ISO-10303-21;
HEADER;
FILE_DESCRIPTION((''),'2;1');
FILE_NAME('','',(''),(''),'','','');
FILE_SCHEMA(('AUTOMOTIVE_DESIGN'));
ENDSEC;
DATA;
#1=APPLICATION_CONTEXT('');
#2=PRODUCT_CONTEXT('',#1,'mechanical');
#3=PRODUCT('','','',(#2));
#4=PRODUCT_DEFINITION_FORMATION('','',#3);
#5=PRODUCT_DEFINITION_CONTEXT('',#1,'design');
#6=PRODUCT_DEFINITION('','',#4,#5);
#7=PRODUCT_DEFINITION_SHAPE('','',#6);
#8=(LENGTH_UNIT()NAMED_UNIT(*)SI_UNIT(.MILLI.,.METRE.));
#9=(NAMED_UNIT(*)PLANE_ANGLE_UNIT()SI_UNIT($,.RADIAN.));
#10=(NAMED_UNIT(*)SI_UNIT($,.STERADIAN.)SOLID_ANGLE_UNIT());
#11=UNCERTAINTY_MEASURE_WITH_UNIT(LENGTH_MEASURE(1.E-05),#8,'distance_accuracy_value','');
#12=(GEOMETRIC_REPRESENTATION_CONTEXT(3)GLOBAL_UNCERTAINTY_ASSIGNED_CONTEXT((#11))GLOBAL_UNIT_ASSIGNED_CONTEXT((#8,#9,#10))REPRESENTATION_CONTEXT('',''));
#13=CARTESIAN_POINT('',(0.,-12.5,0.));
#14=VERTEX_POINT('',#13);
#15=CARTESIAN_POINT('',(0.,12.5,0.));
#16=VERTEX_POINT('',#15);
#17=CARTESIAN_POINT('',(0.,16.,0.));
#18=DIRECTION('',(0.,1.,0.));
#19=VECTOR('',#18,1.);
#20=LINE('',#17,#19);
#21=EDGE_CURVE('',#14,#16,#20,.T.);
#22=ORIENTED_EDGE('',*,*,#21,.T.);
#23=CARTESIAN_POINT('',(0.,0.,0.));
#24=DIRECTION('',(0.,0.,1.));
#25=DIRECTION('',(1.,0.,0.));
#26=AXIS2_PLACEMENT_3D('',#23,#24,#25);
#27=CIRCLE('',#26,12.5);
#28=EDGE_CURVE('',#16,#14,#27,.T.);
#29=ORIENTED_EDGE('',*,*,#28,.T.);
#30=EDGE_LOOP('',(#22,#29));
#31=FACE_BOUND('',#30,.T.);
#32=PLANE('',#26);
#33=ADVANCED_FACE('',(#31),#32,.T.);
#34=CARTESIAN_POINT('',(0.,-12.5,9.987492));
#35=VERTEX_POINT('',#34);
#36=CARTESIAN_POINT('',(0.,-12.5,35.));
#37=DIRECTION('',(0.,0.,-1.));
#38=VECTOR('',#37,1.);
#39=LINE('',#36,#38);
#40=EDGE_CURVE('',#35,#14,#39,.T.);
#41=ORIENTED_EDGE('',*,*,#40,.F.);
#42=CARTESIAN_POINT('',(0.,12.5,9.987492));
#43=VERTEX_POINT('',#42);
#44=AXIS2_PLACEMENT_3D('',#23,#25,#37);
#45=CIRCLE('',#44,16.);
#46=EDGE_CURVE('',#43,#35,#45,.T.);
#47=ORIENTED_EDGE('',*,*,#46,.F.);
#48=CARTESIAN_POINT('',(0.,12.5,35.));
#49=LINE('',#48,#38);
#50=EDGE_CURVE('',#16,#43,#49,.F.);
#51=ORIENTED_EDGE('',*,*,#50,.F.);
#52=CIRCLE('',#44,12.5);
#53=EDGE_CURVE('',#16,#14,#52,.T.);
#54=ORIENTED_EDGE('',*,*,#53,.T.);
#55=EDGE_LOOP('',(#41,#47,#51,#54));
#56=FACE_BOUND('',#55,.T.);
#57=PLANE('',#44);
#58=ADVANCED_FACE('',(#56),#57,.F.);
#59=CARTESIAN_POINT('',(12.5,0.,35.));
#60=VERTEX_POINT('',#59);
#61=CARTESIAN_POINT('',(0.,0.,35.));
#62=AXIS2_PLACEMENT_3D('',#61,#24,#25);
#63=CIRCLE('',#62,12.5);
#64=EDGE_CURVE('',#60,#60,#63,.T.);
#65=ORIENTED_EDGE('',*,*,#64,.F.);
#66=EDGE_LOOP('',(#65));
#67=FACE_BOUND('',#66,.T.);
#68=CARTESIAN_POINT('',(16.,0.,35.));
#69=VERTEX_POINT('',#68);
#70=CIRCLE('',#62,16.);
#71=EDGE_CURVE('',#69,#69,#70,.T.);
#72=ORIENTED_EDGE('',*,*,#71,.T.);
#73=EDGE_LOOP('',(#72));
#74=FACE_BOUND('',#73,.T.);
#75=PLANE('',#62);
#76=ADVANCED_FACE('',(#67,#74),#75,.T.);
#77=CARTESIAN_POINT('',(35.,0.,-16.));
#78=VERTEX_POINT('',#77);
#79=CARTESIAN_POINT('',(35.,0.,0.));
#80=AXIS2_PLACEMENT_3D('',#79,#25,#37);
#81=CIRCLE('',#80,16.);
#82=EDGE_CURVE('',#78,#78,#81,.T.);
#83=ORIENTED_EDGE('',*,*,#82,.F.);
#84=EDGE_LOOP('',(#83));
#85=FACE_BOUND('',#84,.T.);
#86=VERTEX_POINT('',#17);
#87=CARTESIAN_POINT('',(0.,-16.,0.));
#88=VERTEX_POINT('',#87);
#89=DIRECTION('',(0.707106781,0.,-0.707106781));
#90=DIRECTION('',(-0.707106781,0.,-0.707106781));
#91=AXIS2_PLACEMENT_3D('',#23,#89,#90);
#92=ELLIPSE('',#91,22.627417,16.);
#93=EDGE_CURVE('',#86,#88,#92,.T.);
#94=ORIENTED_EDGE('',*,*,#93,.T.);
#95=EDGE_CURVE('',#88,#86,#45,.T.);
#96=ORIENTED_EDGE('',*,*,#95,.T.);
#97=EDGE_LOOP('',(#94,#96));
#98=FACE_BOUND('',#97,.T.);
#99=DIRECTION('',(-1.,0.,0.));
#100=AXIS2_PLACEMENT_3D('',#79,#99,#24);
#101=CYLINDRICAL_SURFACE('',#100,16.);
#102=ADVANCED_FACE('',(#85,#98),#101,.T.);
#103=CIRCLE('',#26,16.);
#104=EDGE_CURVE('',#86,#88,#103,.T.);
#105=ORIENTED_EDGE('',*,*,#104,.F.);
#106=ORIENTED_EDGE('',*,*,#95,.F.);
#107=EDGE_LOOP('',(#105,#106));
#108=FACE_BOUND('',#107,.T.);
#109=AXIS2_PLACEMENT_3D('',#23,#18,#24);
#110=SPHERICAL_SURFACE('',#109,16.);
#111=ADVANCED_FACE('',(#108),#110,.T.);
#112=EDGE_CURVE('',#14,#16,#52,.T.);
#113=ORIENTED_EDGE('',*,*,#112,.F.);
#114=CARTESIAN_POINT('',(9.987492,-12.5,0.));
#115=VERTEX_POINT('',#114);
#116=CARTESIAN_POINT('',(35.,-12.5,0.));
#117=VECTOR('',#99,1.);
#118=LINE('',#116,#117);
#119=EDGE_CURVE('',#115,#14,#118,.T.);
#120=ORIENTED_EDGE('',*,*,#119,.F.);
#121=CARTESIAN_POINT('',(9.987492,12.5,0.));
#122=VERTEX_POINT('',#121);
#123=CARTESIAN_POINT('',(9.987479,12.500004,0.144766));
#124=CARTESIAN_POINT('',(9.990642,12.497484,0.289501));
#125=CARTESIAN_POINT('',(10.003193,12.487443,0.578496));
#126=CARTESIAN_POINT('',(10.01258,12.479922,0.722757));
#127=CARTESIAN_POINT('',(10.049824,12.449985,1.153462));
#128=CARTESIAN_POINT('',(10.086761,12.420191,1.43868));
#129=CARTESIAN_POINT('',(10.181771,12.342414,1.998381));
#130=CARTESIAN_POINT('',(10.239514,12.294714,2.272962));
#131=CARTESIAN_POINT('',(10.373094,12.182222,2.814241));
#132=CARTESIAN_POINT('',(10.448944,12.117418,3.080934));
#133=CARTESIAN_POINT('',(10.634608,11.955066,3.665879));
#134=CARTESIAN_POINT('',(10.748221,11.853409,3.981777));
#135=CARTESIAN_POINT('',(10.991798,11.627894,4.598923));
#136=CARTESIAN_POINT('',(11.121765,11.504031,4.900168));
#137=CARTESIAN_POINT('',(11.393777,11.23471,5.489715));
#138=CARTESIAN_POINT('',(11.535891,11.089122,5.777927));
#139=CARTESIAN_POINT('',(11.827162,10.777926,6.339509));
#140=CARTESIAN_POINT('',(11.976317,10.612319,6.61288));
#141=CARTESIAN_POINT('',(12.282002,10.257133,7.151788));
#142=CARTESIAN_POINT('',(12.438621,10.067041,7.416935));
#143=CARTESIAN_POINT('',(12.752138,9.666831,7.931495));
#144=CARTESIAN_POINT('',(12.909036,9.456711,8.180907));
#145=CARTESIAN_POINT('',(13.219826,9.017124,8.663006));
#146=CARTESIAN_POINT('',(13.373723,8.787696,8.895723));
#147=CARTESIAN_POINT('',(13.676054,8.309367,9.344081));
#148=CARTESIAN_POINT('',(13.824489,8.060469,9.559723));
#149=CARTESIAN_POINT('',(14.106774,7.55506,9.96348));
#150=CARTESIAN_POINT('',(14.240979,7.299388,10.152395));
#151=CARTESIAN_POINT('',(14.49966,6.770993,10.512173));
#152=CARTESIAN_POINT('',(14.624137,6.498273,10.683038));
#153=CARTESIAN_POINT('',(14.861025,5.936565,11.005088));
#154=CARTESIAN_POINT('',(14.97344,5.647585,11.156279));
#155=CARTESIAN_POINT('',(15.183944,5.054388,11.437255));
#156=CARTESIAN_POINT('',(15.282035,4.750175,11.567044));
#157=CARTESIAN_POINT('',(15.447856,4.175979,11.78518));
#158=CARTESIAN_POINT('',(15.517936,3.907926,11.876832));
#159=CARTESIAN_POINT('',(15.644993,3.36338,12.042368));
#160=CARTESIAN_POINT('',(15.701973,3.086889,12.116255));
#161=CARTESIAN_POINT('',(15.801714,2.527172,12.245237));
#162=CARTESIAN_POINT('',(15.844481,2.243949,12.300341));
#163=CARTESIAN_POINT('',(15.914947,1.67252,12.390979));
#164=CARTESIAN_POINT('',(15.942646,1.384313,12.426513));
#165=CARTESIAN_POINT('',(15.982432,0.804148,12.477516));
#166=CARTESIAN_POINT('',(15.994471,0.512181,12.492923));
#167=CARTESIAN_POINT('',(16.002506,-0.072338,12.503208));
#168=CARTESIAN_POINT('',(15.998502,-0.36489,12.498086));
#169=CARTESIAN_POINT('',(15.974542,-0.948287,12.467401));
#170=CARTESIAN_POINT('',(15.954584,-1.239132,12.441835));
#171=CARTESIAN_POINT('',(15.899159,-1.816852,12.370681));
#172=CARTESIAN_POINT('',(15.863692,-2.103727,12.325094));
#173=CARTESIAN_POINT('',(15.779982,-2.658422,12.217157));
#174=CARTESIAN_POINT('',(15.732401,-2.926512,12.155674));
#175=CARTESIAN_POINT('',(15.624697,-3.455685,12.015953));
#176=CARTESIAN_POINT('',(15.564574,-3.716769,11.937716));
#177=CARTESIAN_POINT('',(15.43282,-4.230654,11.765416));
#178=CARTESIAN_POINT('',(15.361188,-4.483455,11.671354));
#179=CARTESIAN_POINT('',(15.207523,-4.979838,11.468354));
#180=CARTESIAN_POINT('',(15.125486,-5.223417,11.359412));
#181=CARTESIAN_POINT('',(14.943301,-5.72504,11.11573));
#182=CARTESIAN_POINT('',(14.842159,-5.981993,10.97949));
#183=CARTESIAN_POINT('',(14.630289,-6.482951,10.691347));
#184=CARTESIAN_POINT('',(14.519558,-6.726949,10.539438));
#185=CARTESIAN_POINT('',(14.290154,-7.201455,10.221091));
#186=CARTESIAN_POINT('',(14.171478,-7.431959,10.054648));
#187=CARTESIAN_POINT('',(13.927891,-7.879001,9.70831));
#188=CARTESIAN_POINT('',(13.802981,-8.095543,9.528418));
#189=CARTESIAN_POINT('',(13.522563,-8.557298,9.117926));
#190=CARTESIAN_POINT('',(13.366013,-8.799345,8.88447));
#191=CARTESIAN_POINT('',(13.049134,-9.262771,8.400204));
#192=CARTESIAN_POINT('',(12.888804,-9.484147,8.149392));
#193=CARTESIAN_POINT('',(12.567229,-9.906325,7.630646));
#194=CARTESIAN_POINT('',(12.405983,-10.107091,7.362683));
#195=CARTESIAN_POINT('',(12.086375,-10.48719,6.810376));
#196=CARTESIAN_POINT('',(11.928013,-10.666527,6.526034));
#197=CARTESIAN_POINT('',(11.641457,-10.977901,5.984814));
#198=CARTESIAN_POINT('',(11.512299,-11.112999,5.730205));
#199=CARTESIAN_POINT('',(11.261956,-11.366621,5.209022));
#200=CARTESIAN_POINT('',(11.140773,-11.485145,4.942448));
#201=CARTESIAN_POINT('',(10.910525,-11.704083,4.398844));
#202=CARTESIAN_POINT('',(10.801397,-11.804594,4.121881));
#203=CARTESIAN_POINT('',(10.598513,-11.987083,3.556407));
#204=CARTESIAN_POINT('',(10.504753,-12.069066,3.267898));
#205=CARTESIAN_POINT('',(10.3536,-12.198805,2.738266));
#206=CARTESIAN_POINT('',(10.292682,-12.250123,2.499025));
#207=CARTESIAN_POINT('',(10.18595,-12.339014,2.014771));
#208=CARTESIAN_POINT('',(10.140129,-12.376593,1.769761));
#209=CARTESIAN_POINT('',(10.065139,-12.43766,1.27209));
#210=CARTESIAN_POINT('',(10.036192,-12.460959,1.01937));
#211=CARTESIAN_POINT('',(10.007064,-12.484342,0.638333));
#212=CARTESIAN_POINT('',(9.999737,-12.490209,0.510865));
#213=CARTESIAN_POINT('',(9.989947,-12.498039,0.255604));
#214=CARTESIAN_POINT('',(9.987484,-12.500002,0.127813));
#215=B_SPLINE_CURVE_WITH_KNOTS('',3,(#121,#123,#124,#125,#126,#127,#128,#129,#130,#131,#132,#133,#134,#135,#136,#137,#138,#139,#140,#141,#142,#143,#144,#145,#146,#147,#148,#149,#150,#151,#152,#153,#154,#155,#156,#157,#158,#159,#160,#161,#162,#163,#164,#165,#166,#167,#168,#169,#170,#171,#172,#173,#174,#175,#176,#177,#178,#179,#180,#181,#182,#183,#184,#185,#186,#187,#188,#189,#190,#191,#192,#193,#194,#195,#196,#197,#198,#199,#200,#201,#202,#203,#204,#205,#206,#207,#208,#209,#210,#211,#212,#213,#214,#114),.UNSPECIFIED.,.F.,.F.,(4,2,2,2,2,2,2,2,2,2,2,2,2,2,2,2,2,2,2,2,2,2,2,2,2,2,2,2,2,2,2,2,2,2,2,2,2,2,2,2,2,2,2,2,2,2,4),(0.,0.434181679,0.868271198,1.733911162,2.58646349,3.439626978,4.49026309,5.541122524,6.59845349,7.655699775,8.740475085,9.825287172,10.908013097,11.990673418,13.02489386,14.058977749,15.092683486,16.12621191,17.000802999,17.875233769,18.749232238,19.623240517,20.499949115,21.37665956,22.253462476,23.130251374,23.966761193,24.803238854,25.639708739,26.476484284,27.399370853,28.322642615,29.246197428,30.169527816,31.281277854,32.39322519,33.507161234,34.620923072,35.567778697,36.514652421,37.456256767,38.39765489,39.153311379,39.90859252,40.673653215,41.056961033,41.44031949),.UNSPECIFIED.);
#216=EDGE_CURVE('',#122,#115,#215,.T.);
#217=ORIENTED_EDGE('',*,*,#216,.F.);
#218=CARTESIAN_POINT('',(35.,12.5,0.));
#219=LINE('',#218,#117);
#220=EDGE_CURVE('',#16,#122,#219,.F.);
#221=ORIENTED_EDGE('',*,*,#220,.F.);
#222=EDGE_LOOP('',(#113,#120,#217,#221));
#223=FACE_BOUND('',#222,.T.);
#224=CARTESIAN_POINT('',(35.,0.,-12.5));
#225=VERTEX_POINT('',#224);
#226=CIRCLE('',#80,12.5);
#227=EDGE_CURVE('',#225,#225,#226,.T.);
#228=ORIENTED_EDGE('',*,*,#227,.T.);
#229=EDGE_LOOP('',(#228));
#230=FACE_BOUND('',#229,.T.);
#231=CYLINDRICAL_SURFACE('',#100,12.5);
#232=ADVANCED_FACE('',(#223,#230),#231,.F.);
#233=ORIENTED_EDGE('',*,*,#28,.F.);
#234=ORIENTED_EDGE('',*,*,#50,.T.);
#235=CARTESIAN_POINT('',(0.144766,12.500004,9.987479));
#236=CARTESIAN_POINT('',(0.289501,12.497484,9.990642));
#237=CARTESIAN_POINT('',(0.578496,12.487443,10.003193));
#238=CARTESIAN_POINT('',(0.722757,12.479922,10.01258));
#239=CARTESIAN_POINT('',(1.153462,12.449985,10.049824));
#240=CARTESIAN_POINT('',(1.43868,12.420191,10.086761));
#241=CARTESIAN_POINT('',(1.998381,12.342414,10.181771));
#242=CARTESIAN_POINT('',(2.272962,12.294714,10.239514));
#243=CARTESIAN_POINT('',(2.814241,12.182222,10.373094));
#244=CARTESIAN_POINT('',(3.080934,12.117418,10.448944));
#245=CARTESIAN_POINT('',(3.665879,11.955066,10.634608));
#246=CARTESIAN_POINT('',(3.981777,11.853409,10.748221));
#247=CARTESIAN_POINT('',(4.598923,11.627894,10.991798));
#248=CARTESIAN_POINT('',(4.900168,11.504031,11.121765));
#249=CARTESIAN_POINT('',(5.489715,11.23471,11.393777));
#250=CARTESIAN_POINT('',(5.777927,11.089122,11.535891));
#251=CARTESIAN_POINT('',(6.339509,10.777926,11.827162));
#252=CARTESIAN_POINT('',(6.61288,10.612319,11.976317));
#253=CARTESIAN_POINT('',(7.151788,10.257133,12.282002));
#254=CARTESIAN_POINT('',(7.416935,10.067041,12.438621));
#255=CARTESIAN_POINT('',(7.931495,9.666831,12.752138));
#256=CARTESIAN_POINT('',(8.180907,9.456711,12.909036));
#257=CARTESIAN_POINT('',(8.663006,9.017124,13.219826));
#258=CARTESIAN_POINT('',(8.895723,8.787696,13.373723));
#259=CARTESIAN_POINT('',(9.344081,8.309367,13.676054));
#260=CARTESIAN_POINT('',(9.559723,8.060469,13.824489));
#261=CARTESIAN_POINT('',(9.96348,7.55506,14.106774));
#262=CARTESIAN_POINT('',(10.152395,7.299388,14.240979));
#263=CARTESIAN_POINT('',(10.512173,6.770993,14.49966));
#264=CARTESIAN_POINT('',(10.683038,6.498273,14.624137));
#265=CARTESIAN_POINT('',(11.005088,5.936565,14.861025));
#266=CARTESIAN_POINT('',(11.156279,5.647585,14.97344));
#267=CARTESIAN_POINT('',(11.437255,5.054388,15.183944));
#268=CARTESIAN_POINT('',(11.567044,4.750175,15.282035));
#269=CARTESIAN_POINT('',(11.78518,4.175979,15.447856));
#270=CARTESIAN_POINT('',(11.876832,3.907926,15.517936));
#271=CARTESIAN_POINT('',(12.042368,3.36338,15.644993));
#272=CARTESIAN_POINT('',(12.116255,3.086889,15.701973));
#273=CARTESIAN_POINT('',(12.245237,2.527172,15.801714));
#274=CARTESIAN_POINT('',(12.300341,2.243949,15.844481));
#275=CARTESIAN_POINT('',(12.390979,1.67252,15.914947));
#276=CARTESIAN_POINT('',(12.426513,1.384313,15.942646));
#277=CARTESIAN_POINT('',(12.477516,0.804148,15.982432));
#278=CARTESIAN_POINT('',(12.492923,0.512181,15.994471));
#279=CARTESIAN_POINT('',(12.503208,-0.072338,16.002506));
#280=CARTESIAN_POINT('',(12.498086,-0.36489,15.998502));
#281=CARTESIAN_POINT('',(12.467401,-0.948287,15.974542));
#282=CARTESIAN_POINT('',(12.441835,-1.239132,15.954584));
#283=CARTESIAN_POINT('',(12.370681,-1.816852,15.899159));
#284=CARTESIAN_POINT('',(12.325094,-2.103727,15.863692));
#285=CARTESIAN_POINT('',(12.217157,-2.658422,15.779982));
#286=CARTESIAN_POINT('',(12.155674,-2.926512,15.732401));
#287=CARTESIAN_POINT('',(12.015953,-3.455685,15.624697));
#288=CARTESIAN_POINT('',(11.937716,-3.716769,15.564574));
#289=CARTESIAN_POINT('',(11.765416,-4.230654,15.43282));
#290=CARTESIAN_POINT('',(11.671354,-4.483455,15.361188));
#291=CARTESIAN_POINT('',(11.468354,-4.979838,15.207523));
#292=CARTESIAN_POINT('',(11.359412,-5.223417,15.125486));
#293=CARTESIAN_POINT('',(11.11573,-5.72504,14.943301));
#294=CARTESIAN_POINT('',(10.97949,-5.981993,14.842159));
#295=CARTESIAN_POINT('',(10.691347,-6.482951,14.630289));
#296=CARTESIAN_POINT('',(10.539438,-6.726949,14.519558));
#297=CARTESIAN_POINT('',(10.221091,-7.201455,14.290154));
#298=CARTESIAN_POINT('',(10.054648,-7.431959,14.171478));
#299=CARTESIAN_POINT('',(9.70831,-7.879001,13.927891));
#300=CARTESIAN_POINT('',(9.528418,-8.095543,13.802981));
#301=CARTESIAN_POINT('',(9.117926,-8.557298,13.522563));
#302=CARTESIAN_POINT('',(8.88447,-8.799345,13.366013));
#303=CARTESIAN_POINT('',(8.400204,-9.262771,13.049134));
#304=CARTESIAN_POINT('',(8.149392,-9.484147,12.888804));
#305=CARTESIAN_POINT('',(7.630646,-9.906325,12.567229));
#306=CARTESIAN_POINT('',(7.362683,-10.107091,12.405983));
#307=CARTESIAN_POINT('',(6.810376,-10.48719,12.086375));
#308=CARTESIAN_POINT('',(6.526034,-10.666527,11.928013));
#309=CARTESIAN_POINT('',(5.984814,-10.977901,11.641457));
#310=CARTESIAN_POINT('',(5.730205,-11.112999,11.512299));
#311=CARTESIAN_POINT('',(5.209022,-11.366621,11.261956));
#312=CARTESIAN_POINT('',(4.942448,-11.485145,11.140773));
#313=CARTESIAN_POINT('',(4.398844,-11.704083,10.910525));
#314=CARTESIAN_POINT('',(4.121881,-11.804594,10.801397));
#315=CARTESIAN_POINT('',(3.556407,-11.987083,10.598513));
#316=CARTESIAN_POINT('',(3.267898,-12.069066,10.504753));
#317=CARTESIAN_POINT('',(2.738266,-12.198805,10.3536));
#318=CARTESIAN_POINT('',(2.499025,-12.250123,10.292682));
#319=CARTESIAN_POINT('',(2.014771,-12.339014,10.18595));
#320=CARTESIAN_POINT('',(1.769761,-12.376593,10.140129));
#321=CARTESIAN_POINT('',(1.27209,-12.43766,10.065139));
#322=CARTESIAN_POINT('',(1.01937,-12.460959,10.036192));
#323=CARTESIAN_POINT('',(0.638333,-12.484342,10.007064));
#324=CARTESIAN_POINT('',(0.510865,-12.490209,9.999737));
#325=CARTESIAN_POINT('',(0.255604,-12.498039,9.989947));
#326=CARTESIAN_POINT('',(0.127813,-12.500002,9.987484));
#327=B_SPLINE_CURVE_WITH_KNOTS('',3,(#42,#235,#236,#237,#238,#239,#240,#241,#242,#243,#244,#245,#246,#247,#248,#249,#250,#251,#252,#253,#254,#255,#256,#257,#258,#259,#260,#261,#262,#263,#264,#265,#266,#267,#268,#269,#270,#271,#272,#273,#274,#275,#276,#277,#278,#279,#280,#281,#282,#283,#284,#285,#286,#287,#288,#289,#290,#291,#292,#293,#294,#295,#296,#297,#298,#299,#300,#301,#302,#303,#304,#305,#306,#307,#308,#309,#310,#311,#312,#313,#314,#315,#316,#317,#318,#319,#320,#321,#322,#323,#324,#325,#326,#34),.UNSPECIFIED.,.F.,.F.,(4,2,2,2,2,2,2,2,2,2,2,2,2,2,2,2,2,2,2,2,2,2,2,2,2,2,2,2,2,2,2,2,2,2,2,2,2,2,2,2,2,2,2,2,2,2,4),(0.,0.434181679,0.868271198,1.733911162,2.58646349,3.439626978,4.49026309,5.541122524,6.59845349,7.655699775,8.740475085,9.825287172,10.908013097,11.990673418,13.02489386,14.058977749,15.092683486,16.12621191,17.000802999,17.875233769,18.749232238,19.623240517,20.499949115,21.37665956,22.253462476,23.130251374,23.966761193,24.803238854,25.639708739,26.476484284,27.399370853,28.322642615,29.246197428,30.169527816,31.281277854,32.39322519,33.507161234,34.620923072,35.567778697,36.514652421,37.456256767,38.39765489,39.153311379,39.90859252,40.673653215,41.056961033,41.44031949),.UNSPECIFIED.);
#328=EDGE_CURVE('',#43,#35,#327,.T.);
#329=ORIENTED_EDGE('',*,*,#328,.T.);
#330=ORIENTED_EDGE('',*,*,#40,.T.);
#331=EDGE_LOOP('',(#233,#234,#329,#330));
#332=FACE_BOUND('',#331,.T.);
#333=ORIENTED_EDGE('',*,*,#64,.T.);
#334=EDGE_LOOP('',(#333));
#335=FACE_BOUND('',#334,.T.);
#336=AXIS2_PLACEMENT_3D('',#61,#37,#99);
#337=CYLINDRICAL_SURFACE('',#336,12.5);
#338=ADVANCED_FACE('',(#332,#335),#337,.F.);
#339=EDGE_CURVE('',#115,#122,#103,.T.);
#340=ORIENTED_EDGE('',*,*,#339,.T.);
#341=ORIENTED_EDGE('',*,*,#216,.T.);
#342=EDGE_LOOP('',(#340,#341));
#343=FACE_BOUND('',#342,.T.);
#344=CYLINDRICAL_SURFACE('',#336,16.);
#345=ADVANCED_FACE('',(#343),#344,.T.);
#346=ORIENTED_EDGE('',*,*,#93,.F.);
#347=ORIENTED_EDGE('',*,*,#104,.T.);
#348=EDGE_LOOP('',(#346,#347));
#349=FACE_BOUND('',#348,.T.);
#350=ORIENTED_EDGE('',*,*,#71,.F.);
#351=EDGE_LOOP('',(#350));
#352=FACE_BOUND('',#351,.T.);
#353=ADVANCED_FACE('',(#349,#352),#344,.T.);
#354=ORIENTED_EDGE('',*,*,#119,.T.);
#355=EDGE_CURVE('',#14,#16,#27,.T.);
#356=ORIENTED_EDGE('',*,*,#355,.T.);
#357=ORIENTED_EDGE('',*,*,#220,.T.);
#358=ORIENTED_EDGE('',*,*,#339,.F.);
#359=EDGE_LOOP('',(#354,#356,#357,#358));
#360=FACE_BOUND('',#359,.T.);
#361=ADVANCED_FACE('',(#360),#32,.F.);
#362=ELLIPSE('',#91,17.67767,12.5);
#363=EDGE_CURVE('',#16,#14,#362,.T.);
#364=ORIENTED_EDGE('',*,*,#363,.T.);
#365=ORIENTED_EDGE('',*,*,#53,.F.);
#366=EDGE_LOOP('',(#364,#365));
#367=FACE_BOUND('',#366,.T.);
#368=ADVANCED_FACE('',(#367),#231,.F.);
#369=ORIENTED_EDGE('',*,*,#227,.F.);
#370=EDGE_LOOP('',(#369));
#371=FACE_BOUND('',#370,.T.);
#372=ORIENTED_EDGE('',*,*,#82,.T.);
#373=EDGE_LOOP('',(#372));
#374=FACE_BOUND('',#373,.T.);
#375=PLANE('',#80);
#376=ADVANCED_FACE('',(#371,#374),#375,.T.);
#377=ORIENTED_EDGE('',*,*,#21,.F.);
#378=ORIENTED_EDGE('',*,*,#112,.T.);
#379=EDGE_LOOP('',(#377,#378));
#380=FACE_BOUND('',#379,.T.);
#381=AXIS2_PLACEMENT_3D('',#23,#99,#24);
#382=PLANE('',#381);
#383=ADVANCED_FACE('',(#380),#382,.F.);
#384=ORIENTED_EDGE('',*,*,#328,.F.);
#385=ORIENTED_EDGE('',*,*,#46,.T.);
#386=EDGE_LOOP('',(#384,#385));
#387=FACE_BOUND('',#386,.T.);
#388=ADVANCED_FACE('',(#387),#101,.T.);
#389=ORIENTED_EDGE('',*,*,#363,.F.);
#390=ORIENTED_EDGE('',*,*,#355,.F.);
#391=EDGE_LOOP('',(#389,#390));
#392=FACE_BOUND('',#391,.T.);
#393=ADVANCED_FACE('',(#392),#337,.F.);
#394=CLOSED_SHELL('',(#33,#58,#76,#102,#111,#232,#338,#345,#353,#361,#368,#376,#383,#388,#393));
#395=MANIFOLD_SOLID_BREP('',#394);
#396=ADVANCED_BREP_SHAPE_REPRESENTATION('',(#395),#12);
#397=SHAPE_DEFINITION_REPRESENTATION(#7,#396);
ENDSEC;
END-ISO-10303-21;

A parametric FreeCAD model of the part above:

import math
import FreeCAD as App
import Part
import Sketcher
Q = App.Units.Quantity

doc = App.newDocument("Part")
body = doc.addObject("PartDesign::Body", "Body")

sketch1 = body.newObject("Sketcher::SketchObject", "Sketch")
sketch1.AttachmentSupport = (doc.getObject("XY_Plane"), [""])
sketch1.MapMode = "FlatFace"
sketch1.addGeometry([
    Part.Circle(App.Vector(0, 0, 0), App.Vector(0, 0, 1), 16),
    Part.Circle(App.Vector(0, 0, 0), App.Vector(0, 0, 1), 12),
], False)
sketch1.addConstraint([
    Sketcher.Constraint("Coincident", 0, 3, -1, 1),
    Sketcher.Constraint("Coincident", 1, 3, -1, 1),
    Sketcher.Constraint("Diameter", 0, Q("32 mm")),
    Sketcher.Constraint("Diameter", 1, Q("25 mm")),
])
pad1 = body.newObject("PartDesign::Pad", "Pad")
pad1.Profile = sketch1
pad1.Length = 35

sketch2 = body.newObject("Sketcher::SketchObject", "Sketch001")
sketch2.AttachmentSupport = (doc.getObject("YZ_Plane"), [""])
sketch2.MapMode = "FlatFace"
sketch2.addGeometry([
    Part.Circle(App.Vector(0, 0, 0), App.Vector(0, 0, 1), 16),
    Part.Circle(App.Vector(0, 0, 0), App.Vector(0, 0, 1), 12),
], False)
sketch2.addConstraint([
    Sketcher.Constraint("Coincident", 0, 3, -1, 1),
    Sketcher.Constraint("Coincident", 1, 3, -1, 1),
    Sketcher.Constraint("Diameter", 0, Q("32 mm")),
    Sketcher.Constraint("Diameter", 1, Q("25 mm")),
])
pad2 = body.newObject("PartDesign::Pad", "Pad001")
pad2.Profile = sketch2
pad2.Length = 35

sketch3 = body.newObject("Sketcher::SketchObject", "Sketch002")
sketch3.AttachmentSupport = (doc.getObject("XY_Plane"), [""])
sketch3.MapMode = "FlatFace"
sketch3.addGeometry([
    Part.LineSegment(App.Vector(0, -16, 0), App.Vector(0, 16, 0)),
    Part.ArcOfCircle(Part.Circle(App.Vector(0, 0, 0), App.Vector(0, 0, 1), 16), math.radians(90), math.radians(270)),
], False)
sketch3.addConstraint([
    Sketcher.Constraint("Coincident", 0, 1, 1, 2),
    Sketcher.Constraint("Coincident", 1, 1, 0, 2),
    Sketcher.Constraint("Vertical", 0),
    Sketcher.Constraint("Coincident", 1, 3, -1, 1),
    Sketcher.Constraint("PointOnObject", 0, 1, -2),
    Sketcher.Constraint("Radius", 1, Q("16 mm")),
])
revolution = body.newObject("PartDesign::Revolution", "Revolution")
revolution.Profile = sketch3
revolution.ReferenceAxis = (sketch3, ["V_Axis"])
revolution.Angle = 90
revolution.Reversed = True

doc.recompute()
